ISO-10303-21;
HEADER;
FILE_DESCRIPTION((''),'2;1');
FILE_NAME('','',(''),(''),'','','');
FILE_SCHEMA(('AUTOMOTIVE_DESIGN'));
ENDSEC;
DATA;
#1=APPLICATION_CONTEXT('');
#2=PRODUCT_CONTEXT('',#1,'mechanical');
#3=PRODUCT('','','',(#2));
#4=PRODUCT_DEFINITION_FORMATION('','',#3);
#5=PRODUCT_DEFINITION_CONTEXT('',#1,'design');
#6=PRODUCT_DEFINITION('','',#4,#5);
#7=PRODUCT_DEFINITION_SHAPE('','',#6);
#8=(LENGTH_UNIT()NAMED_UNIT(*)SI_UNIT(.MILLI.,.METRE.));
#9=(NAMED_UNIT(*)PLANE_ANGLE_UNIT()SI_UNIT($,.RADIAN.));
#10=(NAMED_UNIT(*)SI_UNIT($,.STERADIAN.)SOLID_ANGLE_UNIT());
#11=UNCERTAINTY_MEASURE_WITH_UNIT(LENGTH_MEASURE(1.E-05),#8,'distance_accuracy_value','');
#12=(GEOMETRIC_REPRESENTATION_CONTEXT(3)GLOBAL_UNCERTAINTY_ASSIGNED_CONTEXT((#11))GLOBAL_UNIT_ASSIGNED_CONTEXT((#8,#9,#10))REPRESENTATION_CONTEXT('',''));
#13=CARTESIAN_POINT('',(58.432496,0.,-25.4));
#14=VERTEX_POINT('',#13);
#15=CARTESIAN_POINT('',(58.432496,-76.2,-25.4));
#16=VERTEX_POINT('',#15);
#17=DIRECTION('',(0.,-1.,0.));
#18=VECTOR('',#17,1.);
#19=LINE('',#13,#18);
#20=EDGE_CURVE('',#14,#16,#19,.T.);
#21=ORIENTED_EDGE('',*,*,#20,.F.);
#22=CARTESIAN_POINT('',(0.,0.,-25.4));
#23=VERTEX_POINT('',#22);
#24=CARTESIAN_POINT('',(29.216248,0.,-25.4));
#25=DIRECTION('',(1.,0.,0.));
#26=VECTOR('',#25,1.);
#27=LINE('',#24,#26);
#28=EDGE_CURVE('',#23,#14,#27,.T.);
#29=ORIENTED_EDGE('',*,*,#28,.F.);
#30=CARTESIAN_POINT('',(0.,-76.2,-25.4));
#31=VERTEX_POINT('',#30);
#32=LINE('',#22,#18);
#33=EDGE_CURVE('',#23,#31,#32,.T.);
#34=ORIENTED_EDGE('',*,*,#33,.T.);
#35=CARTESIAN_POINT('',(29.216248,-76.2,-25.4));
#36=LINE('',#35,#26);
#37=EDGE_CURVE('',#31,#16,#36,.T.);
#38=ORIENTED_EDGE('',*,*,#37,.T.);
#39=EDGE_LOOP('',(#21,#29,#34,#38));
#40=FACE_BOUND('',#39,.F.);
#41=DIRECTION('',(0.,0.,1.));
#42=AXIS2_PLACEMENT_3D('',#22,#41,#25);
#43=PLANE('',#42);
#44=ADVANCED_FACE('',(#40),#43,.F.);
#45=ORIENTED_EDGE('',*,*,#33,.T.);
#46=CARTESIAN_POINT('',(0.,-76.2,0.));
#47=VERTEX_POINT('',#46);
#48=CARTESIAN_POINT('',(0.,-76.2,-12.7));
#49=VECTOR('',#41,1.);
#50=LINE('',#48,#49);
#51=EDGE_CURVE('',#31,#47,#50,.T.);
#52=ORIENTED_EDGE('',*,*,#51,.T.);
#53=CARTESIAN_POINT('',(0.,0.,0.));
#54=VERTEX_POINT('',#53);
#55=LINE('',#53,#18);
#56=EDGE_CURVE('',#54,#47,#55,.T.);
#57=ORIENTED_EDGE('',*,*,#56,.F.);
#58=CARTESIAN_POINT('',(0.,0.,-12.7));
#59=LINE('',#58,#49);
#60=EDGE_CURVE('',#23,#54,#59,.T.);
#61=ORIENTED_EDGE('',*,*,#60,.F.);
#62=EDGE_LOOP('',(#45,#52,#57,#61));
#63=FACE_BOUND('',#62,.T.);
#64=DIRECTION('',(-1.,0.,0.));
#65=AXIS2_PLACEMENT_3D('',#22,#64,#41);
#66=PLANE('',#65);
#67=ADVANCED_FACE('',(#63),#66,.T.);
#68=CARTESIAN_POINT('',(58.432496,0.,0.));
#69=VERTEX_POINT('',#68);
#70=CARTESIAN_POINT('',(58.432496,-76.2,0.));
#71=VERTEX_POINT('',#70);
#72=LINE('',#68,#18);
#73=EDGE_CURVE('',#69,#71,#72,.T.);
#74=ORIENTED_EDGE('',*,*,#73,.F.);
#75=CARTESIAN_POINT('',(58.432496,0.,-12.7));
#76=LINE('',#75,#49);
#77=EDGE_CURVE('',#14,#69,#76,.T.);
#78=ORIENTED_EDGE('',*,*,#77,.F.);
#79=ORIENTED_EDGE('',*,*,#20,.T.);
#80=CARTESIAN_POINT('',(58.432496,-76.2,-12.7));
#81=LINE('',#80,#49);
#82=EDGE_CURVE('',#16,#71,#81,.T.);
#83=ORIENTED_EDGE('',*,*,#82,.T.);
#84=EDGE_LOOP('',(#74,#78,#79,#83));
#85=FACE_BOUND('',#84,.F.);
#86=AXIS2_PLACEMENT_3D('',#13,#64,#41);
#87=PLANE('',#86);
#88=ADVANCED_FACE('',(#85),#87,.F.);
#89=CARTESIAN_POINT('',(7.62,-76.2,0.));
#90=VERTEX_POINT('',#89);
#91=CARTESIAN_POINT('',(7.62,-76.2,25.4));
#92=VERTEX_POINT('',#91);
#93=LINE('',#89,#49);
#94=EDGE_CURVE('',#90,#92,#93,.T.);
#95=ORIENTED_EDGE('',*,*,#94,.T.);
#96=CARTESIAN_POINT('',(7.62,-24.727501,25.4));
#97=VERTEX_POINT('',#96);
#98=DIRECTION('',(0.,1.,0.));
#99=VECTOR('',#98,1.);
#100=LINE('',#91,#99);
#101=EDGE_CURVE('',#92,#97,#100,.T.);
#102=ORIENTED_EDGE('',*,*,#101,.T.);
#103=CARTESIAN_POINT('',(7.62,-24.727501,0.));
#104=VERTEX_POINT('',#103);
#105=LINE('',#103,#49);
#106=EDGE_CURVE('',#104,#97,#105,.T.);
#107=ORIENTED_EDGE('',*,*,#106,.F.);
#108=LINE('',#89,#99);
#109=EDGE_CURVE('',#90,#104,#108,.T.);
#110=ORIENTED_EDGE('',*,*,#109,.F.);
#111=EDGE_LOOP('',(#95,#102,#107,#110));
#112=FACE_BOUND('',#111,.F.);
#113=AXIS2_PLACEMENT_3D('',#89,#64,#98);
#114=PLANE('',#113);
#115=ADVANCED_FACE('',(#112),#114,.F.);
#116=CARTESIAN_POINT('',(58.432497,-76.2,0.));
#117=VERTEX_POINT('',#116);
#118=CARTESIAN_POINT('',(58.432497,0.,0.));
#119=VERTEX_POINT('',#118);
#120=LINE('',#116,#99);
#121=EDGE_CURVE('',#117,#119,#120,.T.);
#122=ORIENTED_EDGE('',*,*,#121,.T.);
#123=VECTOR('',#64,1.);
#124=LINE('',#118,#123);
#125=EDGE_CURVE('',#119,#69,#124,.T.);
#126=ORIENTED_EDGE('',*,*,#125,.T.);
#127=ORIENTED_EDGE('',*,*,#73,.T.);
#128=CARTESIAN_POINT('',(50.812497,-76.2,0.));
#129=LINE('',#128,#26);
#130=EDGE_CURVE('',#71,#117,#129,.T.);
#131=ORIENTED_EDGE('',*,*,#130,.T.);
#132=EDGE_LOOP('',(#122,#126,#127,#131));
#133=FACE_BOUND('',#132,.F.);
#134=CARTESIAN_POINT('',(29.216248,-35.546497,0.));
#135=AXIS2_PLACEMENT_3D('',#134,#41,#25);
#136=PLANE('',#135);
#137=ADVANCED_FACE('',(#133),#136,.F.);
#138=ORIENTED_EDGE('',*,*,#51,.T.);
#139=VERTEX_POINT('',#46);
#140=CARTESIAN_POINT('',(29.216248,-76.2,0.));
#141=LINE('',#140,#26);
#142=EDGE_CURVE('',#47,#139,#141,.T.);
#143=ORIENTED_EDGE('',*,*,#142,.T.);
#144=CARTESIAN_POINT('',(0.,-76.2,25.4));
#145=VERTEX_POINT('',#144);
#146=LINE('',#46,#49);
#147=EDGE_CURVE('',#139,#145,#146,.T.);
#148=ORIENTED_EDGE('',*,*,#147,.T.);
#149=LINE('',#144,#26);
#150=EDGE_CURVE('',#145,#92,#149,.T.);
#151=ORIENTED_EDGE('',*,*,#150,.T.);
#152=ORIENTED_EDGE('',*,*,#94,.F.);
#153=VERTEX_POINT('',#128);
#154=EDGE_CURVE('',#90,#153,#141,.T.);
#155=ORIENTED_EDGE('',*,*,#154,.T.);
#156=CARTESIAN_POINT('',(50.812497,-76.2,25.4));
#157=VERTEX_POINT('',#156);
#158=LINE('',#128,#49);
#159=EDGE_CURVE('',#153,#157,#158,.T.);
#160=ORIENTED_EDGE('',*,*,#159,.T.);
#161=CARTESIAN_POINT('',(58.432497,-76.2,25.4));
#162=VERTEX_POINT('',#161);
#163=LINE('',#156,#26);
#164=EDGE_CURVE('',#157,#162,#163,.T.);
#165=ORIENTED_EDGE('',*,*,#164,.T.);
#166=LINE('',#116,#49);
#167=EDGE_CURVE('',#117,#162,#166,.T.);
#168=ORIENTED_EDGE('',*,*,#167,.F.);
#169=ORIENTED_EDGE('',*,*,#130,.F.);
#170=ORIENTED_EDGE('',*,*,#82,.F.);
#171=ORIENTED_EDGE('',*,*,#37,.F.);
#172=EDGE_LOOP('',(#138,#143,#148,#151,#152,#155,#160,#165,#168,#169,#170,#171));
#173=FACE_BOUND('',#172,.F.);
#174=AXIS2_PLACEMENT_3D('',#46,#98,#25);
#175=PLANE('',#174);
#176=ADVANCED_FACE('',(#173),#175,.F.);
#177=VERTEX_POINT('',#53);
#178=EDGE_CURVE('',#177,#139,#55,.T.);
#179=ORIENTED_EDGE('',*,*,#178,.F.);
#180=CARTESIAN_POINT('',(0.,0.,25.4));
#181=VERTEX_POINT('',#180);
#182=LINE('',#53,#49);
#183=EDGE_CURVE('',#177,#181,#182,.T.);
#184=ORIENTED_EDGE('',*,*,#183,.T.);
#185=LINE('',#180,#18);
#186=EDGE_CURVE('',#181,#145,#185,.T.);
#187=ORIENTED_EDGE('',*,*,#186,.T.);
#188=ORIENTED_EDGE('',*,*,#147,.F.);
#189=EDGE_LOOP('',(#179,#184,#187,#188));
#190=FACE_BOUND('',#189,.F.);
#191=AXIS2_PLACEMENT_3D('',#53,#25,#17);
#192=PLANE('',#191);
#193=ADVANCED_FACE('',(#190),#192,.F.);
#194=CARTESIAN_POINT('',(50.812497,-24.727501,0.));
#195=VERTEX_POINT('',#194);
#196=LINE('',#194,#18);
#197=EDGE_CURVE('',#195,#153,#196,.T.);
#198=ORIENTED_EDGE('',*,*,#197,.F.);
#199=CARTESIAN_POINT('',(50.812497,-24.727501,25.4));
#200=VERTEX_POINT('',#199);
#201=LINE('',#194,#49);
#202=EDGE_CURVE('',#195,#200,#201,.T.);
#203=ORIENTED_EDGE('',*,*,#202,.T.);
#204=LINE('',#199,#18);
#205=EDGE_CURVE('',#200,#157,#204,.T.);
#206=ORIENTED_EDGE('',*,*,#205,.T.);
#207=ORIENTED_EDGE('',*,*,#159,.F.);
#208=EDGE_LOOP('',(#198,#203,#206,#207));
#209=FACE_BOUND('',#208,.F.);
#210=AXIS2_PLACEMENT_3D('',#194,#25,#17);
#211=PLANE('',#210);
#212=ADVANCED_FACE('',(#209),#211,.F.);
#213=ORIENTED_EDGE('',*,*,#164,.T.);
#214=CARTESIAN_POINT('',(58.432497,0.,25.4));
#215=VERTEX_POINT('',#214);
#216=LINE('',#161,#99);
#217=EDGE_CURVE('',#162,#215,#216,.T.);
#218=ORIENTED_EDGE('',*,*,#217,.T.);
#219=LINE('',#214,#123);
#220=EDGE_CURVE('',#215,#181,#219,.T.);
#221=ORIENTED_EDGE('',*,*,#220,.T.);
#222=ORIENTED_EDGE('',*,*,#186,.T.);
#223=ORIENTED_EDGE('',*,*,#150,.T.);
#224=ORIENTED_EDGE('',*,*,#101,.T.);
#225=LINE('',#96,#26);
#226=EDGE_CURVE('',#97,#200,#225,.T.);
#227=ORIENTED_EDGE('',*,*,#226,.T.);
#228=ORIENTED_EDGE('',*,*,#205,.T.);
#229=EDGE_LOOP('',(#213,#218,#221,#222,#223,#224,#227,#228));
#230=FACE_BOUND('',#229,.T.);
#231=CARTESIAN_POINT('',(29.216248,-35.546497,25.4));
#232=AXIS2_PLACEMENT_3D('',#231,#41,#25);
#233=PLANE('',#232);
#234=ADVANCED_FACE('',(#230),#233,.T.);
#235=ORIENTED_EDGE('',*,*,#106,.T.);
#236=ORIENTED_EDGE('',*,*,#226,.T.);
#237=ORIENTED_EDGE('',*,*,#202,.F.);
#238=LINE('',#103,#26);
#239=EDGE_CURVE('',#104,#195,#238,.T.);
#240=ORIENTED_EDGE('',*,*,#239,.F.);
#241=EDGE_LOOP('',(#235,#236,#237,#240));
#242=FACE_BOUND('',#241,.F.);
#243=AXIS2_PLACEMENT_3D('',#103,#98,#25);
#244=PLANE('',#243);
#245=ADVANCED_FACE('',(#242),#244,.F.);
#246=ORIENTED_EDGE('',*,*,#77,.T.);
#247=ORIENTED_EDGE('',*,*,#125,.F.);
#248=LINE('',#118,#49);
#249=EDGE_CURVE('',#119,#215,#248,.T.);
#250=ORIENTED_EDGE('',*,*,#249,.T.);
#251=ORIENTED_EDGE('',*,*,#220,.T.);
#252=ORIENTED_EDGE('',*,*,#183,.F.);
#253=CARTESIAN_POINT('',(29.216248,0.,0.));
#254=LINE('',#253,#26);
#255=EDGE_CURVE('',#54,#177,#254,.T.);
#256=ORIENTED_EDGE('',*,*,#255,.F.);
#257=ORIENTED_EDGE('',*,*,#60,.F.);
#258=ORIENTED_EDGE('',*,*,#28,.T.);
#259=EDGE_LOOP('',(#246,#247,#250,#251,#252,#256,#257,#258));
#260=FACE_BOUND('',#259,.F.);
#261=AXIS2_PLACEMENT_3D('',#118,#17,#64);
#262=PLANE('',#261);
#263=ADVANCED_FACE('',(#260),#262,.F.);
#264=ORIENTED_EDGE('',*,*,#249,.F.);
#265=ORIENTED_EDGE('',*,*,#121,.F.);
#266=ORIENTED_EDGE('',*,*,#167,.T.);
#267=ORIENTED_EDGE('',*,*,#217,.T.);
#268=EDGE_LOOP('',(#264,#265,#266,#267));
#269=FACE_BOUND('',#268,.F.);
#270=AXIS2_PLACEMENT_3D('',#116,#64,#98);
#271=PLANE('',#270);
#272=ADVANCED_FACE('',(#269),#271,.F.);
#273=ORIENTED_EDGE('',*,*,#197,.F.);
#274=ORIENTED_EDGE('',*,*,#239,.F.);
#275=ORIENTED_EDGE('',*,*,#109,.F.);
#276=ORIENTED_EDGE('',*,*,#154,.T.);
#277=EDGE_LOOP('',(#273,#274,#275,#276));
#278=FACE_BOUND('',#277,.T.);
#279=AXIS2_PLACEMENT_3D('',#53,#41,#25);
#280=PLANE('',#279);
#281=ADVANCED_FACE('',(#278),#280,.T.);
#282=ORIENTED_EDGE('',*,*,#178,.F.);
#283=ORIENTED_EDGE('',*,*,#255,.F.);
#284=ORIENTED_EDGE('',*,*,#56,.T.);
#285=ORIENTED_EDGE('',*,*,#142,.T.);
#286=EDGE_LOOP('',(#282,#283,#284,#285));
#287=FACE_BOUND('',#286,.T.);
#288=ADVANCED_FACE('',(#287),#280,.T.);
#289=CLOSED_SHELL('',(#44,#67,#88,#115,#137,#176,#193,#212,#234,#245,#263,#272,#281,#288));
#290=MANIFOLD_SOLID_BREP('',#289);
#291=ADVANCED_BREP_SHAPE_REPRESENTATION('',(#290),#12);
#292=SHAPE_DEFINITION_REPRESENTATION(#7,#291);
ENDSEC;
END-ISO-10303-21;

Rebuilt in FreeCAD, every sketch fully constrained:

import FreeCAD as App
import Part
import Sketcher
from FreeCAD import Vector
Q = App.Units.Quantity

doc = App.newDocument("Part")
params = doc.addObject("Spreadsheet::Sheet", "Params")
for row, (alias, value) in enumerate([
    ("sketch1_height", "1 in"),
    ("pad1_length", "3 in"),
    ("sketch2_height", "3 in"),
    ("sketch2_width", "0.3 in"),
    ("pad2_length", "1 in"),
], start=1):
    params.set(f"A{row}", alias)
    params.set(f"B{row}", "=" + value)
    params.setAlias(f"B{row}", alias)

body = doc.addObject("PartDesign::Body", "Body")

# Sketch on XZ plane
sketch1 = body.newObject("Sketcher::SketchObject", "Sketch")
sketch1.AttachmentSupport = (doc.getObject("XZ_Plane"), [""])
sketch1.MapMode = "FlatFace"
sketch1.addGeometry([
    Part.LineSegment(Vector(0, 0, 0), Vector(0, -25, 0)),
    Part.LineSegment(Vector(0, -25, 0), Vector(58, -25, 0)),
    Part.LineSegment(Vector(58, -25, 0), Vector(58, 0, 0)),
    Part.LineSegment(Vector(58, 0, 0), Vector(0, 0, 0)),
], False)
sketch1.addConstraint([
    Sketcher.Constraint("Coincident", 0, 2, 1, 1),
    Sketcher.Constraint("Coincident", 1, 2, 2, 1),
    Sketcher.Constraint("Coincident", 2, 2, 3, 1),
    Sketcher.Constraint("Coincident", 3, 2, 0, 1),
    Sketcher.Constraint("Vertical", 0),
    Sketcher.Constraint("Horizontal", 1),
    Sketcher.Constraint("Vertical", 2),
    Sketcher.Constraint("Horizontal", 3),
    Sketcher.Constraint("Coincident", 3, 2, -1, 1),
    Sketcher.Constraint("DistanceY", 0, 2, 0, 1, Q("1 in")),
    Sketcher.Constraint("DistanceX", 1, 1, 1, 2, 58.432497),
])
sketch1.setExpression("Constraints[9]", "Params.sketch1_height")
pad1 = body.newObject("PartDesign::Pad", "Pad")
pad1.Profile = sketch1
pad1.setExpression("Length", "Params.pad1_length")

# Sketch on XY plane
sketch2 = body.newObject("Sketcher::SketchObject", "Sketch001")
sketch2.AttachmentSupport = (doc.getObject("XY_Plane"), [""])
sketch2.MapMode = "FlatFace"
sketch2.addGeometry([
    Part.LineSegment(Vector(8, -76, 0), Vector(8, -25, 0)),  # 0
    Part.LineSegment(Vector(8, -25, 0), Vector(51, -25, 0)),  # 1
    Part.LineSegment(Vector(51, -25, 0), Vector(51, -76, 0)),  # 2
    Part.LineSegment(Vector(51, -76, 0), Vector(58, -76, 0)),  # 3
    Part.LineSegment(Vector(58, -76, 0), Vector(58, 0, 0)),  # 4
    Part.LineSegment(Vector(58, 0, 0), Vector(0, 0, 0)),  # 5
    Part.LineSegment(Vector(0, 0, 0), Vector(0, -76, 0)),  # 6
    Part.LineSegment(Vector(0, -76, 0), Vector(8, -76, 0)),  # 7
], False)
sketch2.addConstraint([
    Sketcher.Constraint("Coincident", 0, 2, 1, 1),
    Sketcher.Constraint("Coincident", 1, 2, 2, 1),
    Sketcher.Constraint("Coincident", 2, 2, 3, 1),
    Sketcher.Constraint("Coincident", 3, 2, 4, 1),
    Sketcher.Constraint("Coincident", 4, 2, 5, 1),
    Sketcher.Constraint("Coincident", 5, 2, 6, 1),
    Sketcher.Constraint("Coincident", 6, 2, 7, 1),
    Sketcher.Constraint("Coincident", 7, 2, 0, 1),
    Sketcher.Constraint("Vertical", 0),
    Sketcher.Constraint("Horizontal", 1),
    Sketcher.Constraint("Vertical", 2),
    Sketcher.Constraint("Horizontal", 3),
    Sketcher.Constraint("Vertical", 4),
    Sketcher.Constraint("Horizontal", 5),
    Sketcher.Constraint("Vertical", 6),
    Sketcher.Constraint("Horizontal", 7),
    Sketcher.Constraint("Coincident", 5, 2, -1, 1),
    Sketcher.Constraint("Horizontal", 3, 2, 6, 2),
    Sketcher.Constraint("Equal", 3, 7),
    Sketcher.Constraint("DistanceY", 4, 1, 4, 2, Q("3 in")),
    Sketcher.Constraint("DistanceX", 3, 1, 3, 2, Q("0.3 in")),
    Sketcher.Constraint("DistanceY", 0, 1, 0, 2, 51.472499),
    Sketcher.Constraint("DistanceX", 1, 1, 1, 2, 43.192497),
])
sketch2.setExpression("Constraints[19]", "Params.sketch2_height")
sketch2.setExpression("Constraints[20]", "Params.sketch2_width")
pad2 = body.newObject("PartDesign::Pad", "Pad001")
pad2.Profile = sketch2
pad2.setExpression("Length", "Params.pad2_length")

doc.recompute()
